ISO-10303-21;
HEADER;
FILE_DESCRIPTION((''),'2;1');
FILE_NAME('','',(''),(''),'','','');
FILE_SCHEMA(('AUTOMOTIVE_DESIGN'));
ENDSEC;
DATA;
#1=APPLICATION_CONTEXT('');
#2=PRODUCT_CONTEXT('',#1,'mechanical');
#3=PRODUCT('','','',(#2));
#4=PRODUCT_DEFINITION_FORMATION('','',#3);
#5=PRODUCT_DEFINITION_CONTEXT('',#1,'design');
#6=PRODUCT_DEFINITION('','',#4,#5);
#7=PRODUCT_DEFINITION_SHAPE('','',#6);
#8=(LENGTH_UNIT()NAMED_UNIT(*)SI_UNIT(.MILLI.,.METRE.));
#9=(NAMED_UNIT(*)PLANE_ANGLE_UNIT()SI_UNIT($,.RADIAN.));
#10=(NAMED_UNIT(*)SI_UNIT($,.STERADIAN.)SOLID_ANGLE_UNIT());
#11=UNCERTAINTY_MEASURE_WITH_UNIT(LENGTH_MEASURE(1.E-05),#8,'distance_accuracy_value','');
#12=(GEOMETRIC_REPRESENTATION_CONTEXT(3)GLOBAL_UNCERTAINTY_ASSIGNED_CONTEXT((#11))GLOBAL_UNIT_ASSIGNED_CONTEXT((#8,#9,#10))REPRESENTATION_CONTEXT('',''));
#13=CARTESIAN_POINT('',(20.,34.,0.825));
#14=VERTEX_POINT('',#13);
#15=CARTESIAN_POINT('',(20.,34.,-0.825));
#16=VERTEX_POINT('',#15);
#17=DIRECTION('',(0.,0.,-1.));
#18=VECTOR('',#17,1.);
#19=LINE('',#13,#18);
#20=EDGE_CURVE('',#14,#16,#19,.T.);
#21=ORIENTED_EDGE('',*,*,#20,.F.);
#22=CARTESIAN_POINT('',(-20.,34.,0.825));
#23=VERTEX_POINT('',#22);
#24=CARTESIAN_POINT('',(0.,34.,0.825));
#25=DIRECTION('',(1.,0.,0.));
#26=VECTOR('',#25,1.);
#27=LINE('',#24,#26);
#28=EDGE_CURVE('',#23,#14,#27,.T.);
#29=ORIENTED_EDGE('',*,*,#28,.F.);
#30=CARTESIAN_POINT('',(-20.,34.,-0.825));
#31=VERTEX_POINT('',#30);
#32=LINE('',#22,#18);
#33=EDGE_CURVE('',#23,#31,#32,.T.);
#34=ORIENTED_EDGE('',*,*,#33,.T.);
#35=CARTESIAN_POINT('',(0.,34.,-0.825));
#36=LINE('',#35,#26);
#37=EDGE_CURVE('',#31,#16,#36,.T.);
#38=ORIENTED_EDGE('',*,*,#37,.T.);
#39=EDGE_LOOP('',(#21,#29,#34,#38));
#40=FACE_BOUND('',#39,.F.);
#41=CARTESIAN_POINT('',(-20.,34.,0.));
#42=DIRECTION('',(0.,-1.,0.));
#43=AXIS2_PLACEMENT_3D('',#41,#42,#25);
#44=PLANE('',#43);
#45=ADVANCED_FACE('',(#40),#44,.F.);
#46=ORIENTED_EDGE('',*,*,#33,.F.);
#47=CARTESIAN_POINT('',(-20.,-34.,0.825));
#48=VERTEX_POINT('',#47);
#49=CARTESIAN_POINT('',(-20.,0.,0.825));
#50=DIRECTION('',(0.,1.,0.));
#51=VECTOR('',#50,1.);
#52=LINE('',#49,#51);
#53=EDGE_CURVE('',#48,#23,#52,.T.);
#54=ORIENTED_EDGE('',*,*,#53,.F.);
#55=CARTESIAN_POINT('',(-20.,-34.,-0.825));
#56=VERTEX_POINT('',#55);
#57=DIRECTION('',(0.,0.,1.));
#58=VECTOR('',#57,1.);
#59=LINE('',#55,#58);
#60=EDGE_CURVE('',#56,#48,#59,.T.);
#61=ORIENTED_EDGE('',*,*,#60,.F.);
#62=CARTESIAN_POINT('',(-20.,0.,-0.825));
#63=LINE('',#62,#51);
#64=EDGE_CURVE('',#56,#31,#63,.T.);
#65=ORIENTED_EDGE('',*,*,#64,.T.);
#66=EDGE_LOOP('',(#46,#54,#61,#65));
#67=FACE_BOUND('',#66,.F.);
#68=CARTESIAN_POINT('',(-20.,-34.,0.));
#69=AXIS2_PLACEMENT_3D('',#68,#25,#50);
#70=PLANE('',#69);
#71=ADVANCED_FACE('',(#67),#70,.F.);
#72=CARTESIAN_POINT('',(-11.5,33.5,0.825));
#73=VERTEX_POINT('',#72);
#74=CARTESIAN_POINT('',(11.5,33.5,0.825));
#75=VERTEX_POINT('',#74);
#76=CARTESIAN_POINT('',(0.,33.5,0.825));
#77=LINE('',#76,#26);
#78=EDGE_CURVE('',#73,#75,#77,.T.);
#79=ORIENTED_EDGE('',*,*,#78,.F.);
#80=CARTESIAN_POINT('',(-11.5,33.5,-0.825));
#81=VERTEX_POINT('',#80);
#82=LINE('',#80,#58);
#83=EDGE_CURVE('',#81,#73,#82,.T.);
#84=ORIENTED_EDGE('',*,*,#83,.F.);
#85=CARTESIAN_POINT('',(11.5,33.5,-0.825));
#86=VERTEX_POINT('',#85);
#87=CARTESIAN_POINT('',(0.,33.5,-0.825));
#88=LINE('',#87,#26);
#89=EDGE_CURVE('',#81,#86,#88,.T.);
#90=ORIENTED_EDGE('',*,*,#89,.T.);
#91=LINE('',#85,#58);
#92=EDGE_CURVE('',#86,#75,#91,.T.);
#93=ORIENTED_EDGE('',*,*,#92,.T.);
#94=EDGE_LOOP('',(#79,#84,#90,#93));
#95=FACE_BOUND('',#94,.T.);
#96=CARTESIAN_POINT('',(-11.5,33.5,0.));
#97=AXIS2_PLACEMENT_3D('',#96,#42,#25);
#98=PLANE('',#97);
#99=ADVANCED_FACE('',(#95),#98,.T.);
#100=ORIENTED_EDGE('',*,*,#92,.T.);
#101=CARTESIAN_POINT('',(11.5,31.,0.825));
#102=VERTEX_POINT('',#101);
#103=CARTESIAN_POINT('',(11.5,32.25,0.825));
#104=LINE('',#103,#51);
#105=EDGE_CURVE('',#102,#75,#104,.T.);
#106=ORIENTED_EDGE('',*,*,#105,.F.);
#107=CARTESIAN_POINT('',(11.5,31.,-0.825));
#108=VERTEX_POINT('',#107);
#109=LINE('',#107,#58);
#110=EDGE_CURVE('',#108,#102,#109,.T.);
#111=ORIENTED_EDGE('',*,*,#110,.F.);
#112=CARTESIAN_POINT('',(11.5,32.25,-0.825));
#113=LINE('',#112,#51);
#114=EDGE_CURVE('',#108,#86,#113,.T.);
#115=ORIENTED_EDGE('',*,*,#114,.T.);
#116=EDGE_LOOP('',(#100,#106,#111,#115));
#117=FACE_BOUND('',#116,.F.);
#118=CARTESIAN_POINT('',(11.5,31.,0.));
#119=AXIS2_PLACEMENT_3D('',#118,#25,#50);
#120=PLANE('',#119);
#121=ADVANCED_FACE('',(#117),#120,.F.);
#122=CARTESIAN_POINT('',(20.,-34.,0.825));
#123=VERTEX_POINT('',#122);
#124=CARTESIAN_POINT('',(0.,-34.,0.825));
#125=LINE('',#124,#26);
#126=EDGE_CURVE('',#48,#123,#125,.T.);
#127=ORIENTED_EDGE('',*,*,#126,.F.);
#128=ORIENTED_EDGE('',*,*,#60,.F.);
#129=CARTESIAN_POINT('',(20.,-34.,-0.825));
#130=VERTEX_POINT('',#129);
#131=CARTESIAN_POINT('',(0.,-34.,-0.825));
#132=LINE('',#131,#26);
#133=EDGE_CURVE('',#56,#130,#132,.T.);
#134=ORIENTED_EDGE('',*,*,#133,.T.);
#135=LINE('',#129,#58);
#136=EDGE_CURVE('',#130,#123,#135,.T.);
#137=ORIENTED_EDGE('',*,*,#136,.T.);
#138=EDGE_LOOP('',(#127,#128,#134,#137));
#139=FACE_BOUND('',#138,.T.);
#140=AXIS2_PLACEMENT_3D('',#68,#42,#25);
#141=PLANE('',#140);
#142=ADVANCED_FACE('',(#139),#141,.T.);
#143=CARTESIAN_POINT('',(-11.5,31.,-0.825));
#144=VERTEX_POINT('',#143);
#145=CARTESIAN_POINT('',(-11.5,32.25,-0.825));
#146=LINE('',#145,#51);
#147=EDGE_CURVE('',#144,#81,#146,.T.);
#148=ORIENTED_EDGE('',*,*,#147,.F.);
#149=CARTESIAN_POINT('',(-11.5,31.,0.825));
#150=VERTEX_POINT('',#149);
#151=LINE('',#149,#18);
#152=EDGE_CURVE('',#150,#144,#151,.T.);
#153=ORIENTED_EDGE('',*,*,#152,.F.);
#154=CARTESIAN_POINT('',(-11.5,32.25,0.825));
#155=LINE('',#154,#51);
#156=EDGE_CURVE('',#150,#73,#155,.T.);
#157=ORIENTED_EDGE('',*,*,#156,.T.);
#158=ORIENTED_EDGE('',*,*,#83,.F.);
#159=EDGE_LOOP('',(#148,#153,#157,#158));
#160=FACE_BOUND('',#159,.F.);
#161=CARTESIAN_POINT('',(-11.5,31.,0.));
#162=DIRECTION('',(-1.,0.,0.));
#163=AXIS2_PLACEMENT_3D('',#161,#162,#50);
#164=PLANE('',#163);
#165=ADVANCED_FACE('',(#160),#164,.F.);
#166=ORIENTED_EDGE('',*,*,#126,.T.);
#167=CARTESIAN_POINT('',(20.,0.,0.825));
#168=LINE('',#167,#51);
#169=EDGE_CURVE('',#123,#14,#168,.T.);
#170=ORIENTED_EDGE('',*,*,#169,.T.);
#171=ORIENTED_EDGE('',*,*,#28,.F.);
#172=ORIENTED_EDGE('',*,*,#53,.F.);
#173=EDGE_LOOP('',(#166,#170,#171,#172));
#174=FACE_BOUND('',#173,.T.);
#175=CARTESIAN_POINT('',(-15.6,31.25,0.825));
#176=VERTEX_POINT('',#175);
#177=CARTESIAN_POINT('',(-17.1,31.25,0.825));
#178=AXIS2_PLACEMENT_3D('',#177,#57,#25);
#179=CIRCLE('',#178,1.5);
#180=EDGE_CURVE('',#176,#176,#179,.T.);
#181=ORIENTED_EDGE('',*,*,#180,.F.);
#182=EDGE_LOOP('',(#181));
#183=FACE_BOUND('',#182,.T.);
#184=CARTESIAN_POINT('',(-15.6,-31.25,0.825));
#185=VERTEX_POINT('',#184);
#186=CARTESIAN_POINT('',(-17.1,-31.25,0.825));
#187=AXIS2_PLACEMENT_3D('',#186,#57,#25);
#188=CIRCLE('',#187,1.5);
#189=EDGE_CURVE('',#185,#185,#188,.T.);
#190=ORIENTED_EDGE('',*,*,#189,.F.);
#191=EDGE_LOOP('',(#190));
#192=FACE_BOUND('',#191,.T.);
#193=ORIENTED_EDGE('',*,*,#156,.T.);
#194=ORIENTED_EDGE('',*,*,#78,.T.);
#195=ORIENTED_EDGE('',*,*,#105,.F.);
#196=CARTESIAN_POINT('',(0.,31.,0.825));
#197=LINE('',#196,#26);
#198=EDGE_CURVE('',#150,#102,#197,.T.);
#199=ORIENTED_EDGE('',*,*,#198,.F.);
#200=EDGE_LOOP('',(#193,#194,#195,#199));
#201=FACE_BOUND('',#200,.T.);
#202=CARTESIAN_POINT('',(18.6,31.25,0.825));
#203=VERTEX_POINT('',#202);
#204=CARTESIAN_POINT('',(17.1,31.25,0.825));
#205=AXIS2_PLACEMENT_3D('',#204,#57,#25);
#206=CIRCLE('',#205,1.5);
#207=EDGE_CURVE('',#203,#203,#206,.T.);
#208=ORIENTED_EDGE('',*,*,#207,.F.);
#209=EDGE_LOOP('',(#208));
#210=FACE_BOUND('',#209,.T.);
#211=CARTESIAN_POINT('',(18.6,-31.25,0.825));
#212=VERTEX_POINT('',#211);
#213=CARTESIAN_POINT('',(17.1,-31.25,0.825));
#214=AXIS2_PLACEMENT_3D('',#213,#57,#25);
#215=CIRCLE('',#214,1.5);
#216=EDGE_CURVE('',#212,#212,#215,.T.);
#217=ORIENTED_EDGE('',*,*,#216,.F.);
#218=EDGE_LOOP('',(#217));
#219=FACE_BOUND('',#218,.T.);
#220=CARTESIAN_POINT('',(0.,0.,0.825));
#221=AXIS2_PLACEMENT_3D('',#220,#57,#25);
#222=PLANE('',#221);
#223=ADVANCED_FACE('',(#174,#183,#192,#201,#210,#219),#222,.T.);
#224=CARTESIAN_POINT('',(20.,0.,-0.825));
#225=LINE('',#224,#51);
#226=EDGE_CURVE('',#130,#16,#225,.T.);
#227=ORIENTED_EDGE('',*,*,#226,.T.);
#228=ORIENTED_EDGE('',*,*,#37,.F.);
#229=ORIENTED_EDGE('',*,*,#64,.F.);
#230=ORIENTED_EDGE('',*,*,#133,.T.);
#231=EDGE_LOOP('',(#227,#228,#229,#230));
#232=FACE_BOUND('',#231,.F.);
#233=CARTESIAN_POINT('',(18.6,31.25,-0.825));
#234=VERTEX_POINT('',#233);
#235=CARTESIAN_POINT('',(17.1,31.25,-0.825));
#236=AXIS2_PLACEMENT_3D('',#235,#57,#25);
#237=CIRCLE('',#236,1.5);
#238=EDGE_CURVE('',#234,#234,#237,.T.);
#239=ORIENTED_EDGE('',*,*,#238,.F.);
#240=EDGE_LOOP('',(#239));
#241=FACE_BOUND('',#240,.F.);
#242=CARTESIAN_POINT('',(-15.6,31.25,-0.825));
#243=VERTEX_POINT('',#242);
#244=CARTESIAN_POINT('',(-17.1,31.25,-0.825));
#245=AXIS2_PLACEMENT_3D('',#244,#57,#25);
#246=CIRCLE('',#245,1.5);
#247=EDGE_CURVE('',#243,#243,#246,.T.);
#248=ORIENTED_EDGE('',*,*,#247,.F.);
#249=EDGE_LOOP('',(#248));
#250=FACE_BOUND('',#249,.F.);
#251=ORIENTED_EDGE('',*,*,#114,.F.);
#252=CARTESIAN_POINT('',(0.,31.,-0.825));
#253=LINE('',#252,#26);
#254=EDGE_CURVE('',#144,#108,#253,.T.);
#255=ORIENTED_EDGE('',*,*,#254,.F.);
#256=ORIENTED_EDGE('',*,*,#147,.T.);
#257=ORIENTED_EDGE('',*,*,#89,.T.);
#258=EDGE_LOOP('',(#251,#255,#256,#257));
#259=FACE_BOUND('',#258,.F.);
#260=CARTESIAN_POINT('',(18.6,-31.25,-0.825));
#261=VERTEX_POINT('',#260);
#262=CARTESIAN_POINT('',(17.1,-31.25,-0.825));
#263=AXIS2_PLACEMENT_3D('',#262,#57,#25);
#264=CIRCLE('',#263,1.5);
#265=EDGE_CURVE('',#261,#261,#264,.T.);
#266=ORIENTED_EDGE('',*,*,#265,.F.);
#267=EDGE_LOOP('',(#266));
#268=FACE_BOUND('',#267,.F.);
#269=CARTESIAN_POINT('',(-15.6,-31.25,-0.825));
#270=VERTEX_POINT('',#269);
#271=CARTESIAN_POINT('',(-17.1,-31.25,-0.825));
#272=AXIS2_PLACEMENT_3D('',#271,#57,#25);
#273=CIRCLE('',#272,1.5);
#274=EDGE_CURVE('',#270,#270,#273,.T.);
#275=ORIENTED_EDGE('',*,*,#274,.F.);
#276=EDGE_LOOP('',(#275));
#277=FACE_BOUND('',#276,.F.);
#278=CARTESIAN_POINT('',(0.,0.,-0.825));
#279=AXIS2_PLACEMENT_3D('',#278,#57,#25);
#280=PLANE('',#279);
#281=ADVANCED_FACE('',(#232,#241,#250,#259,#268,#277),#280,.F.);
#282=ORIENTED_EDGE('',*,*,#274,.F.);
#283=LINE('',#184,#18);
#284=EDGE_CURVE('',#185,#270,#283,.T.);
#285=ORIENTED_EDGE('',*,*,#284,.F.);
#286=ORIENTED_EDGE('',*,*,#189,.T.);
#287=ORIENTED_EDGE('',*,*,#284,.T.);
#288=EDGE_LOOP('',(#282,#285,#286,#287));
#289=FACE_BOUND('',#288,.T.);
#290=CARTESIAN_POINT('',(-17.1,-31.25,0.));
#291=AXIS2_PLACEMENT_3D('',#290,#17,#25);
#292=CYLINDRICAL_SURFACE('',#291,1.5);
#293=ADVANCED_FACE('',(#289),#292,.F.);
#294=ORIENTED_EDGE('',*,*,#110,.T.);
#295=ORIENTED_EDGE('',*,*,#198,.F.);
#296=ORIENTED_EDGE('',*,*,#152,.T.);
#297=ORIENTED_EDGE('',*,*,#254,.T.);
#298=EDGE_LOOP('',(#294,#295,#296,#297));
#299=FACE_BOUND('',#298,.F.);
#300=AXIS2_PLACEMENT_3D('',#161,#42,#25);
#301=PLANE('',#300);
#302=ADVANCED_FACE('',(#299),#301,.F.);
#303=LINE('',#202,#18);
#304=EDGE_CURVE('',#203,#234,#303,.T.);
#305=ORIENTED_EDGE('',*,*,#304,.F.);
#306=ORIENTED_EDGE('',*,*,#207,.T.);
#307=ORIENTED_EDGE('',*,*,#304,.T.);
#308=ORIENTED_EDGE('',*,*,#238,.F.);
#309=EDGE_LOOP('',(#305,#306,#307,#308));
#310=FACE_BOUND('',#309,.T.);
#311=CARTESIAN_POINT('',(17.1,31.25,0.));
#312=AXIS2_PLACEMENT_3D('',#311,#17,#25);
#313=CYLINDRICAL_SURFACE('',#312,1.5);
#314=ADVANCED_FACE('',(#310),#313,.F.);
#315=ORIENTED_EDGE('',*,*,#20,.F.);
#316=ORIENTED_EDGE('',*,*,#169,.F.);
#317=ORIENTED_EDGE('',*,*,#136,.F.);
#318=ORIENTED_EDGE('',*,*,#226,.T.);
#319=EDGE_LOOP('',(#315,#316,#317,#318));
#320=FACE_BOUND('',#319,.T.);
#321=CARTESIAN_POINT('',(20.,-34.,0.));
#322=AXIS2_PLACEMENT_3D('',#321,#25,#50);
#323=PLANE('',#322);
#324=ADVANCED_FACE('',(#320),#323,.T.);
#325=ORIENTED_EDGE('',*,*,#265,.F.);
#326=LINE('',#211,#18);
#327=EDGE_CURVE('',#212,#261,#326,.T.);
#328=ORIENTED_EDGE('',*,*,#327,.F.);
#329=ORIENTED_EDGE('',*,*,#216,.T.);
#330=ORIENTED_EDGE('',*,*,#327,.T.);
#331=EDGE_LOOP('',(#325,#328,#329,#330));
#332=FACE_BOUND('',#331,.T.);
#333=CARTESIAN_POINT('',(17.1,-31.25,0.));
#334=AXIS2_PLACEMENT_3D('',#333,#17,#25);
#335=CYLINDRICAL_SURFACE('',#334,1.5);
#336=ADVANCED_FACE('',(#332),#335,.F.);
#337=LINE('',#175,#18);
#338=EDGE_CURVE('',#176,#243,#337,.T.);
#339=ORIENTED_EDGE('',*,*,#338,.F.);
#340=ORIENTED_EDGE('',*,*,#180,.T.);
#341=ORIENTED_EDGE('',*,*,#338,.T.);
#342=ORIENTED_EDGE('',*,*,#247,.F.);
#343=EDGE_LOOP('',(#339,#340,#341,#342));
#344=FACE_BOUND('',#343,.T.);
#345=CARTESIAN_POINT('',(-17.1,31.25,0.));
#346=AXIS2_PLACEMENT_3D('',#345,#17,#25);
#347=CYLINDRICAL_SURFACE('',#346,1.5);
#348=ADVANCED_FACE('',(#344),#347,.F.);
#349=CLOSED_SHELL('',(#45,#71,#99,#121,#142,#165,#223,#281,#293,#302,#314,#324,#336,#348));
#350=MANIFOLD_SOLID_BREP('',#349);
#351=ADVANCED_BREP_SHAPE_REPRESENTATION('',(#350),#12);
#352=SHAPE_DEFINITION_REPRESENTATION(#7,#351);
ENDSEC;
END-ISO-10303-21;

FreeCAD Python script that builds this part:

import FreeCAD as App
import Part
import Sketcher

V = App.Vector
Q = App.Units.Quantity

doc = App.newDocument("Part")
body = doc.addObject("PartDesign::Body", "Body")

# Sketch on XY plane
sketch1 = doc.addObject("Sketcher::SketchObject", "Sketch")
body.addObject(sketch1)
sketch1.AttachmentSupport = (doc.XY_Plane, [""])
sketch1.MapMode = "FlatFace"
sketch1.addGeometry([
    Part.LineSegment(V(-20, 34, 0), V(-20, -34, 0)),  # 0
    Part.LineSegment(V(-20, -34, 0), V(20, -34, 0)),  # 1
    Part.LineSegment(V(20, -34, 0), V(20, 34, 0)),  # 2
    Part.LineSegment(V(20, 34, 0), V(-20, 34, 0)),  # 3
    Part.Circle(V(-17.1, -31.25, 0), V(0, 0, 1), 1.5),  # 4
    Part.Circle(V(17.1, -31.25, 0), V(0, 0, 1), 1.5),  # 5
    Part.Circle(V(-17.1, 31.25, 0), V(0, 0, 1), 1.5),  # 6
    Part.LineSegment(V(11.5, 31, 0), V(-11.5, 31, 0)),  # 7
    Part.LineSegment(V(-11.5, 31, 0), V(-11.5, 33.5, 0)),  # 8
    Part.LineSegment(V(-11.5, 33.5, 0), V(11.5, 33.5, 0)),  # 9
    Part.LineSegment(V(11.5, 33.5, 0), V(11.5, 31, 0)),  # 10
    Part.Circle(V(17.1, 31.25, 0), V(0, 0, 1), 1.5),  # 11
], False)
sketch1.addConstraint([
    Sketcher.Constraint("Coincident", 0, 2, 1, 1),
    Sketcher.Constraint("Coincident", 1, 2, 2, 1),
    Sketcher.Constraint("Coincident", 2, 2, 3, 1),
    Sketcher.Constraint("Coincident", 3, 2, 0, 1),
    Sketcher.Constraint("Coincident", 7, 2, 8, 1),
    Sketcher.Constraint("Coincident", 8, 2, 9, 1),
    Sketcher.Constraint("Coincident", 9, 2, 10, 1),
    Sketcher.Constraint("Coincident", 10, 2, 7, 1),
    Sketcher.Constraint("Vertical", 0),
    Sketcher.Constraint("Horizontal", 1),
    Sketcher.Constraint("Vertical", 2),
    Sketcher.Constraint("Horizontal", 3),
    Sketcher.Constraint("Horizontal", 7),
    Sketcher.Constraint("Vertical", 8),
    Sketcher.Constraint("Horizontal", 9),
    Sketcher.Constraint("Vertical", 10),
    Sketcher.Constraint("Equal", 4, 5),
    Sketcher.Constraint("Equal", 5, 6),
    Sketcher.Constraint("Equal", 6, 11),
    Sketcher.Constraint("Symmetric", 5, 3, 6, 3, -1, 1),
    Sketcher.Constraint("Symmetric", 4, 3, 11, 3, -1, 1),
    Sketcher.Constraint("Symmetric", 0, 2, 2, 2, -1, 1),
    Sketcher.Constraint("Symmetric", 4, 3, 5, 3, -2),
    Sketcher.Constraint("Diameter", 4, Q("3 mm")),
    Sketcher.Constraint("DistanceX", 1, 1, 1, 2, Q("40 mm")),
    Sketcher.Constraint("DistanceX", 7, 2, 7, 1, Q("23 mm")),
    Sketcher.Constraint("DistanceY", 0, 2, 0, 1, Q("68 mm")),
    Sketcher.Constraint("DistanceY", 8, 1, 8, 2, Q("2.5 mm")),
    Sketcher.Constraint("DistanceY", -1, 1, 7, 2, Q("31 mm")),
    Sketcher.Constraint("DistanceX", 4, 3, -1, 1, Q("17.1 mm")),
    Sketcher.Constraint("DistanceX", 7, 2, -1, 1, Q("11.5 mm")),
    Sketcher.Constraint("DistanceY", 4, 3, 6, 3, Q("62.5 mm")),
])
pad1 = doc.addObject("PartDesign::Pad", "Pad")
body.addObject(pad1)
pad1.Profile = sketch1
pad1.Length = 1.65
pad1.Midplane = True

doc.recompute()
